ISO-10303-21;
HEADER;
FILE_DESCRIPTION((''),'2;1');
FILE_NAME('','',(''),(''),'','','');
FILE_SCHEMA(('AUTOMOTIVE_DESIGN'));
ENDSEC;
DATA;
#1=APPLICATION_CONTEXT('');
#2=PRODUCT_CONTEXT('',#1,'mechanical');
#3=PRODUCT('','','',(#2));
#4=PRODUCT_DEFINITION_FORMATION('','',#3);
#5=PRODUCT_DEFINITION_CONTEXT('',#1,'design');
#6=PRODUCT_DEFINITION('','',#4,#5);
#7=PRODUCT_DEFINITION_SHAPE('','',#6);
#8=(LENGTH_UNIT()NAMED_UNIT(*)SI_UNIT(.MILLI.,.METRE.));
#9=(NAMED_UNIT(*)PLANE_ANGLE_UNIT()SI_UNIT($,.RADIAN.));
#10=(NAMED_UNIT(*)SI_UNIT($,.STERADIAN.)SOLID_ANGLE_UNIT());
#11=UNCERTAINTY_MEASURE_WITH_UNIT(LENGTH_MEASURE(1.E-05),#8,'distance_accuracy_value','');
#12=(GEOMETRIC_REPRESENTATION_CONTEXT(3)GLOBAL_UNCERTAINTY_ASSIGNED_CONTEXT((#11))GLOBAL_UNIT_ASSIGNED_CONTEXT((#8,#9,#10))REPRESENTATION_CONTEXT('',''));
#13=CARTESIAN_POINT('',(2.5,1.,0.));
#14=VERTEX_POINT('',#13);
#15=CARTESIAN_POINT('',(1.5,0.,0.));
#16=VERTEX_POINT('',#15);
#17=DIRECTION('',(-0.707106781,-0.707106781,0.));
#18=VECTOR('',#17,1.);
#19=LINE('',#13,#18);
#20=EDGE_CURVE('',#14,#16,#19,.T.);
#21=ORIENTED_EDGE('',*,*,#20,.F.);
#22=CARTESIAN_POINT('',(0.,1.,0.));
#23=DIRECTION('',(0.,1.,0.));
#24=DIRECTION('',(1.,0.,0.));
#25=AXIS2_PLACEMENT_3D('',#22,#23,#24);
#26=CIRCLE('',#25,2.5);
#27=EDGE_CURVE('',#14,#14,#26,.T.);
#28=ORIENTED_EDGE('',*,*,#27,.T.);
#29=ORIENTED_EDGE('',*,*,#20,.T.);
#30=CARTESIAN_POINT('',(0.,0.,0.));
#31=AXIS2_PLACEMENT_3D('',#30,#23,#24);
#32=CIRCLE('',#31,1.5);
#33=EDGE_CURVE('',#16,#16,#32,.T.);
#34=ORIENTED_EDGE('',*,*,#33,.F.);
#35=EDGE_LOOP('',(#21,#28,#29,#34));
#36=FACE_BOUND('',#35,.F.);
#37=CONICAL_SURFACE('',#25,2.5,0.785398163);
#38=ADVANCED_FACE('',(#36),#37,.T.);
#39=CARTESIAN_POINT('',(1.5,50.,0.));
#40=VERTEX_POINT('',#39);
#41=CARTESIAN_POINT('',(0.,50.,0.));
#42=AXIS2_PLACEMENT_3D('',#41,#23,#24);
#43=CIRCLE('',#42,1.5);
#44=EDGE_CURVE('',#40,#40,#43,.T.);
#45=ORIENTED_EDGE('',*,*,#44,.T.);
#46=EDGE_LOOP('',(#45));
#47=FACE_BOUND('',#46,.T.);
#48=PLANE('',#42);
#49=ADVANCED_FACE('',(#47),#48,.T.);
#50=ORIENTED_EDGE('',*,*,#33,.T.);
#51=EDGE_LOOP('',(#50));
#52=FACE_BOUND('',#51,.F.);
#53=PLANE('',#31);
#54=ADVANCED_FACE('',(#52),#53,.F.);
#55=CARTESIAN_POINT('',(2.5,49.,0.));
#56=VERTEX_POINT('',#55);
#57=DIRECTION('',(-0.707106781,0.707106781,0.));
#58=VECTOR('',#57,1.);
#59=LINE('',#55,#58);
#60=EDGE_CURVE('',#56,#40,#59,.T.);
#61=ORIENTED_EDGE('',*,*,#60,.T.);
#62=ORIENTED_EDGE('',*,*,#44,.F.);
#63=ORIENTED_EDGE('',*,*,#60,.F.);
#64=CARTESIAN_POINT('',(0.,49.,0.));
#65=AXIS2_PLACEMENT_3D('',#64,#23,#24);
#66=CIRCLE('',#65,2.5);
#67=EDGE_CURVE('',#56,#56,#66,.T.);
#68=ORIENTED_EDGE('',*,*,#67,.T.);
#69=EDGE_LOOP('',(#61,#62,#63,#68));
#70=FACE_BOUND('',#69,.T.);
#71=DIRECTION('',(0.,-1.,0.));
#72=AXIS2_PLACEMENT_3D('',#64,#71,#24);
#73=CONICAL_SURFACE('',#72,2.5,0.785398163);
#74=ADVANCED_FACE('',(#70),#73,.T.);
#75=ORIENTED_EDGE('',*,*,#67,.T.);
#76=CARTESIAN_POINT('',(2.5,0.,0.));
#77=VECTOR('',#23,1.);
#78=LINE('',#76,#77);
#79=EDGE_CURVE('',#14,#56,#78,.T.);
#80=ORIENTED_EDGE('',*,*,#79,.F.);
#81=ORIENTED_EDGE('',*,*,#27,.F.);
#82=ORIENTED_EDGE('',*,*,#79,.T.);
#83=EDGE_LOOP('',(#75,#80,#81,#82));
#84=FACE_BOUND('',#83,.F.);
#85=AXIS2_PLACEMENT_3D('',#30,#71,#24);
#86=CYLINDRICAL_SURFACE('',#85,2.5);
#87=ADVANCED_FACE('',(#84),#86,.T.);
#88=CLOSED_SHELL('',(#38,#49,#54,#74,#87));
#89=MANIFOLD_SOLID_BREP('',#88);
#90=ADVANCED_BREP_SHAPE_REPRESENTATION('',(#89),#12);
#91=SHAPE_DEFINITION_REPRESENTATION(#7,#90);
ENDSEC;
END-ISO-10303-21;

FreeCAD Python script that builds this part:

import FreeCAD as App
import Part
import Sketcher

V = App.Vector
Q = App.Units.Quantity


def edges_at(feature, points):
    """Names of the edges that pass closest to the given points."""
    edges = feature.Shape.Edges
    near = lambda p: min(range(len(edges)), key=lambda i: edges[i].distToShape(Part.Vertex(*p))[0])
    return sorted({f"Edge{near(p) + 1}" for p in points})

doc = App.newDocument("Part")
body = doc.addObject("PartDesign::Body", "Body")

# Sketch on XZ plane
sketch1 = body.newObject("Sketcher::SketchObject", "Sketch")
sketch1.AttachmentSupport = (doc.getObject("XZ_Plane"), [""])
sketch1.MapMode = "FlatFace"
sketch1.addGeometry(Part.Circle(V(0, 0, 0), V(0, 0, 1), 2.5), False)
sketch1.addConstraint(Sketcher.Constraint("Coincident", 0, 3, -1, 1))
sketch1.addConstraint(Sketcher.Constraint("Diameter", 0, Q("5 mm")))
pad1 = body.newObject("PartDesign::Pad", "Pad")
pad1.Profile = sketch1
pad1.Length = 50
pad1.Reversed = True
doc.recompute()

chamfer = body.newObject("PartDesign::Chamfer", "Chamfer")
chamfer.Base = (pad1, edges_at(pad1, [(-2.5, 0, 0), (-2.5, 50, 0)]))
chamfer.Size = 1

doc.recompute()
